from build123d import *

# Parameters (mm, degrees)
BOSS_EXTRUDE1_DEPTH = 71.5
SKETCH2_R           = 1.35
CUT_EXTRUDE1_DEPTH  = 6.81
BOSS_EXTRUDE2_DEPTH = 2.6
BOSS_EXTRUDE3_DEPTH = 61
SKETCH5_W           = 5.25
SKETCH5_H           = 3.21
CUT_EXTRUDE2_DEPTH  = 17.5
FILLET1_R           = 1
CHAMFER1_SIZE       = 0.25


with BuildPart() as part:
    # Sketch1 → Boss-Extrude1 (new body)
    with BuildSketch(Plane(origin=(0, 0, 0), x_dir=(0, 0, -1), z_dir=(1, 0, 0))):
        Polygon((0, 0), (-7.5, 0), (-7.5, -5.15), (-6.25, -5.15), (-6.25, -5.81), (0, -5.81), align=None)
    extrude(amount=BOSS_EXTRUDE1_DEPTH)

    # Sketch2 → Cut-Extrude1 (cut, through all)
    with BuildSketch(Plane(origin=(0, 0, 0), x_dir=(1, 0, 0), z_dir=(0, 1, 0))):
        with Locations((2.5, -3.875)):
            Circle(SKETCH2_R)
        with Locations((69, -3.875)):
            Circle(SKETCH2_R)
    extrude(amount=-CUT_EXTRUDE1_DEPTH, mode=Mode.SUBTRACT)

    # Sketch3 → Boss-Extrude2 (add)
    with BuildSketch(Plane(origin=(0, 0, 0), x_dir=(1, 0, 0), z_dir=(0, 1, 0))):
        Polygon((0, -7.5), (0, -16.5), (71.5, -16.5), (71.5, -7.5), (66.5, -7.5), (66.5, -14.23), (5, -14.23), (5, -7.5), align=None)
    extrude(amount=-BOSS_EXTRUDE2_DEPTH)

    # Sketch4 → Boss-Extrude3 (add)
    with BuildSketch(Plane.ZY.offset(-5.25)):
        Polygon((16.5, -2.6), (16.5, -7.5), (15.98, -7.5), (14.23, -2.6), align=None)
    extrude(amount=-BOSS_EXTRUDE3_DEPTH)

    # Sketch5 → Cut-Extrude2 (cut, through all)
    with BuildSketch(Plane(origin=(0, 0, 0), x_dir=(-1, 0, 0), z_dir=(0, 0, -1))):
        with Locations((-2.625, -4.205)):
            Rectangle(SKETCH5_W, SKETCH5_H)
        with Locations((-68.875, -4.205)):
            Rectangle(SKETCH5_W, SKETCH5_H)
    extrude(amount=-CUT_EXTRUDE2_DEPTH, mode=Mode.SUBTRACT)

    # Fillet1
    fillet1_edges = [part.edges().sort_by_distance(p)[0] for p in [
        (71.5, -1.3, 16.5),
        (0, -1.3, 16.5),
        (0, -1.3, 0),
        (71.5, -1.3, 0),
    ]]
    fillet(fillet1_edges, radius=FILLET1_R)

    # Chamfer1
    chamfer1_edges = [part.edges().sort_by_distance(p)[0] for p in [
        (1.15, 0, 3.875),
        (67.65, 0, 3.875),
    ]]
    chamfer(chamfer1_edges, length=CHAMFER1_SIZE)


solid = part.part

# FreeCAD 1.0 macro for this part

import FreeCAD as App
import Part
import Sketcher
Q = App.Units.Quantity


def edges_at(feature, points):
    """Names of the edges that pass closest to the given points."""
    edges = feature.Shape.Edges
    near = lambda p: min(range(len(edges)), key=lambda i: edges[i].distToShape(Part.Vertex(*p))[0])
    return sorted({f"Edge{near(p) + 1}" for p in points})


def add_polygon(sketch, points):
    """Adds a closed chain of lines whose ends are joined by coincident constraints."""
    first, n = sketch.GeometryCount, len(points)
    for a, b in zip(points, points[1:] + points[:1]):
        sketch.addGeometry(Part.LineSegment(App.Vector(*a, 0), App.Vector(*b, 0)), False)
    for i in range(n):
        sketch.addConstraint(Sketcher.Constraint("Coincident", first + i, 2, first + (i + 1) % n, 1))

doc = App.newDocument("Part")
body = doc.addObject("PartDesign::Body", "Body")

sketch1 = body.newObject("Sketcher::SketchObject", "Sketch")
sketch1.AttachmentSupport = (doc.getObject("YZ_Plane"), [""])
sketch1.MapMode = "FlatFace"
add_polygon(sketch1, [(0, 0), (0, 7.5), (-5.2, 7.5), (-5.2, 6.2), (-5.8, 6.2), (-5.8, 0)])
sketch1.addConstraint([
    Sketcher.Constraint("Vertical", 0),
    Sketcher.Constraint("Horizontal", 1),
    Sketcher.Constraint("Vertical", 2),
    Sketcher.Constraint("Horizontal", 3),
    Sketcher.Constraint("Vertical", 4),
    Sketcher.Constraint("Horizontal", 5),
    Sketcher.Constraint("Coincident", 5, 2, -1, 1),
    Sketcher.Constraint("DistanceY", 0, 1, 0, 2, Q("7.5 mm")),
    Sketcher.Constraint("DistanceX", 1, 2, 1, 1, Q("5.15 mm")),
    Sketcher.Constraint("DistanceX", 3, 2, 3, 1, Q("0.66 mm")),
    Sketcher.Constraint("DistanceY", 2, 2, 2, 1, Q("1.25 mm")),
])
pad1 = body.newObject("PartDesign::Pad", "Pad")
pad1.Profile = sketch1
pad1.Length = 71.5

sketch2 = body.newObject("Sketcher::SketchObject", "Sketch001")
sketch2.AttachmentSupport = (doc.getObject("XZ_Plane"), [""])
sketch2.MapMode = "FlatFace"
sketch2.addGeometry([
    Part.Circle(App.Vector(2.5, 3.9, 0), App.Vector(0, 0, 1), 1.4),
    Part.Circle(App.Vector(69, 3.9, 0), App.Vector(0, 0, 1), 1.4),
], False)
sketch2.addConstraint([
    Sketcher.Constraint("Equal", 0, 1),
    Sketcher.Constraint("Horizontal", 0, 3, 1, 3),
    Sketcher.Constraint("Diameter", 0, Q("2.7 mm")),
    Sketcher.Constraint("DistanceX", -1, 1, 1, 3, Q("69 mm")),
    Sketcher.Constraint("DistanceX", -1, 1, 0, 3, Q("2.5 mm")),
    Sketcher.Constraint("DistanceY", -1, 1, 0, 3, Q("3.875 mm")),
])
pocket1 = body.newObject("PartDesign::Pocket", "Pocket")
pocket1.Profile = sketch2
pocket1.Type = "ThroughAll"
pocket1.Reversed = True

sketch3 = body.newObject("Sketcher::SketchObject", "Sketch002")
sketch3.AttachmentSupport = (doc.getObject("XZ_Plane"), [""])
sketch3.MapMode = "FlatFace"
add_polygon(sketch3, [(0, 8), (0, 16), (72, 16), (72, 8), (66, 8), (66, 14), (5, 14), (5, 8)])
sketch3.addConstraint([
    Sketcher.Constraint("Vertical", 0),
    Sketcher.Constraint("Horizontal", 1),
    Sketcher.Constraint("Vertical", 2),
    Sketcher.Constraint("Horizontal", 3),
    Sketcher.Constraint("Vertical", 4),
    Sketcher.Constraint("Horizontal", 5),
    Sketcher.Constraint("Vertical", 6),
    Sketcher.Constraint("Horizontal", 7),
    Sketcher.Constraint("PointOnObject", 0, 2, -2),
    Sketcher.Constraint("Horizontal", 3, 2, 6, 2),
    Sketcher.Constraint("Equal", 3, 7),
    Sketcher.Constraint("DistanceX", 3, 2, 3, 1, Q("5 mm")),
    Sketcher.Constraint("DistanceY", 0, 1, 0, 2, Q("9 mm")),
    Sketcher.Constraint("DistanceX", 1, 1, 1, 2, Q("71.5 mm")),
    Sketcher.Constraint("DistanceY", 4, 1, 4, 2, Q("6.73 mm")),
    Sketcher.Constraint("DistanceY", -1, 1, 0, 2, Q("16.5 mm")),
])
pad2 = body.newObject("PartDesign::Pad", "Pad001")
pad2.Profile = sketch3
pad2.Length = 2.6

sketch4 = body.newObject("Sketcher::SketchObject", "Sketch003")
sketch4.AttachmentSupport = (doc.getObject("YZ_Plane"), [""])
sketch4.MapMode = "FlatFace"
sketch4.AttachmentOffset = App.Placement(App.Vector(0, 0, 5.25), App.Rotation())
add_polygon(sketch4, [(-7.5, 16.5), (-2.6, 16.5), (-2.6, 14.2), (-7.5, 16)])
sketch4.addConstraint([
    Sketcher.Constraint("Horizontal", 0),
    Sketcher.Constraint("Vertical", 1),
    Sketcher.Constraint("Vertical", 3),
    Sketcher.Constraint("DistanceX", 0, 1, 0, 2, Q("4.9 mm")),
    Sketcher.Constraint("DistanceY", 1, 2, 1, 1, Q("2.27 mm")),
    Sketcher.Constraint("DistanceY", 3, 1, 3, 2, Q("0.52 mm")),
    Sketcher.Constraint("DistanceX", 0, 2, -1, 1, Q("2.6 mm")),
    Sketcher.Constraint("DistanceY", -1, 1, 0, 2, Q("16.5 mm")),
])
pad3 = body.newObject("PartDesign::Pad", "Pad002")
pad3.Profile = sketch4
pad3.Length = 61

sketch5 = body.newObject("Sketcher::SketchObject", "Sketch004")
sketch5.AttachmentSupport = (doc.getObject("XY_Plane"), [""])
sketch5.MapMode = "FlatFace"
add_polygon(sketch5, [(5.2, -2.6), (5.2, -5.8), (0, -5.8), (0, -2.6)])
add_polygon(sketch5, [(71.5, -2.6), (71.5, -5.8), (66.2, -5.8), (66.2, -2.6)])
sketch5.addConstraint([
    Sketcher.Constraint("Vertical", 0),
    Sketcher.Constraint("Horizontal", 1),
    Sketcher.Constraint("Vertical", 2),
    Sketcher.Constraint("Horizontal", 3),
    Sketcher.Constraint("Vertical", 4),
    Sketcher.Constraint("Horizontal", 5),
    Sketcher.Constraint("Vertical", 6),
    Sketcher.Constraint("Horizontal", 7),
    Sketcher.Constraint("PointOnObject", 1, 2, -2),
    Sketcher.Constraint("Horizontal", 1, 2, 4, 2),
    Sketcher.Constraint("Horizontal", 3, 2, 6, 2),
    Sketcher.Constraint("Equal", 3, 5),
    Sketcher.Constraint("DistanceX", 0, 2, 5, 2, Q("61 mm")),
    Sketcher.Constraint("DistanceX", 1, 2, 1, 1, Q("5.25 mm")),
    Sketcher.Constraint("DistanceY", 0, 2, 0, 1, Q("3.21 mm")),
    Sketcher.Constraint("DistanceY", 2, 2, -1, 1, Q("2.6 mm")),
])
pocket2 = body.newObject("PartDesign::Pocket", "Pocket001")
pocket2.Profile = sketch5
pocket2.Type = "ThroughAll"
pocket2.Reversed = True
doc.recompute()

fillet = body.newObject("PartDesign::Fillet", "Fillet")
fillet.Base = (pocket2, edges_at(pocket2, [
    (71.5, -1.3, 16.5),
    (0, -1.3, 16.5),
    (0, -1.3, 0),
    (71.5, -1.3, 0),
]))
fillet.Radius = 1
doc.recompute()

chamfer = body.newObject("PartDesign::Chamfer", "Chamfer")
chamfer.Base = (fillet, edges_at(fillet, [(1.15, 0, 3.875), (67.65, 0, 3.875)]))
chamfer.Size = 0.25

doc.recompute()
